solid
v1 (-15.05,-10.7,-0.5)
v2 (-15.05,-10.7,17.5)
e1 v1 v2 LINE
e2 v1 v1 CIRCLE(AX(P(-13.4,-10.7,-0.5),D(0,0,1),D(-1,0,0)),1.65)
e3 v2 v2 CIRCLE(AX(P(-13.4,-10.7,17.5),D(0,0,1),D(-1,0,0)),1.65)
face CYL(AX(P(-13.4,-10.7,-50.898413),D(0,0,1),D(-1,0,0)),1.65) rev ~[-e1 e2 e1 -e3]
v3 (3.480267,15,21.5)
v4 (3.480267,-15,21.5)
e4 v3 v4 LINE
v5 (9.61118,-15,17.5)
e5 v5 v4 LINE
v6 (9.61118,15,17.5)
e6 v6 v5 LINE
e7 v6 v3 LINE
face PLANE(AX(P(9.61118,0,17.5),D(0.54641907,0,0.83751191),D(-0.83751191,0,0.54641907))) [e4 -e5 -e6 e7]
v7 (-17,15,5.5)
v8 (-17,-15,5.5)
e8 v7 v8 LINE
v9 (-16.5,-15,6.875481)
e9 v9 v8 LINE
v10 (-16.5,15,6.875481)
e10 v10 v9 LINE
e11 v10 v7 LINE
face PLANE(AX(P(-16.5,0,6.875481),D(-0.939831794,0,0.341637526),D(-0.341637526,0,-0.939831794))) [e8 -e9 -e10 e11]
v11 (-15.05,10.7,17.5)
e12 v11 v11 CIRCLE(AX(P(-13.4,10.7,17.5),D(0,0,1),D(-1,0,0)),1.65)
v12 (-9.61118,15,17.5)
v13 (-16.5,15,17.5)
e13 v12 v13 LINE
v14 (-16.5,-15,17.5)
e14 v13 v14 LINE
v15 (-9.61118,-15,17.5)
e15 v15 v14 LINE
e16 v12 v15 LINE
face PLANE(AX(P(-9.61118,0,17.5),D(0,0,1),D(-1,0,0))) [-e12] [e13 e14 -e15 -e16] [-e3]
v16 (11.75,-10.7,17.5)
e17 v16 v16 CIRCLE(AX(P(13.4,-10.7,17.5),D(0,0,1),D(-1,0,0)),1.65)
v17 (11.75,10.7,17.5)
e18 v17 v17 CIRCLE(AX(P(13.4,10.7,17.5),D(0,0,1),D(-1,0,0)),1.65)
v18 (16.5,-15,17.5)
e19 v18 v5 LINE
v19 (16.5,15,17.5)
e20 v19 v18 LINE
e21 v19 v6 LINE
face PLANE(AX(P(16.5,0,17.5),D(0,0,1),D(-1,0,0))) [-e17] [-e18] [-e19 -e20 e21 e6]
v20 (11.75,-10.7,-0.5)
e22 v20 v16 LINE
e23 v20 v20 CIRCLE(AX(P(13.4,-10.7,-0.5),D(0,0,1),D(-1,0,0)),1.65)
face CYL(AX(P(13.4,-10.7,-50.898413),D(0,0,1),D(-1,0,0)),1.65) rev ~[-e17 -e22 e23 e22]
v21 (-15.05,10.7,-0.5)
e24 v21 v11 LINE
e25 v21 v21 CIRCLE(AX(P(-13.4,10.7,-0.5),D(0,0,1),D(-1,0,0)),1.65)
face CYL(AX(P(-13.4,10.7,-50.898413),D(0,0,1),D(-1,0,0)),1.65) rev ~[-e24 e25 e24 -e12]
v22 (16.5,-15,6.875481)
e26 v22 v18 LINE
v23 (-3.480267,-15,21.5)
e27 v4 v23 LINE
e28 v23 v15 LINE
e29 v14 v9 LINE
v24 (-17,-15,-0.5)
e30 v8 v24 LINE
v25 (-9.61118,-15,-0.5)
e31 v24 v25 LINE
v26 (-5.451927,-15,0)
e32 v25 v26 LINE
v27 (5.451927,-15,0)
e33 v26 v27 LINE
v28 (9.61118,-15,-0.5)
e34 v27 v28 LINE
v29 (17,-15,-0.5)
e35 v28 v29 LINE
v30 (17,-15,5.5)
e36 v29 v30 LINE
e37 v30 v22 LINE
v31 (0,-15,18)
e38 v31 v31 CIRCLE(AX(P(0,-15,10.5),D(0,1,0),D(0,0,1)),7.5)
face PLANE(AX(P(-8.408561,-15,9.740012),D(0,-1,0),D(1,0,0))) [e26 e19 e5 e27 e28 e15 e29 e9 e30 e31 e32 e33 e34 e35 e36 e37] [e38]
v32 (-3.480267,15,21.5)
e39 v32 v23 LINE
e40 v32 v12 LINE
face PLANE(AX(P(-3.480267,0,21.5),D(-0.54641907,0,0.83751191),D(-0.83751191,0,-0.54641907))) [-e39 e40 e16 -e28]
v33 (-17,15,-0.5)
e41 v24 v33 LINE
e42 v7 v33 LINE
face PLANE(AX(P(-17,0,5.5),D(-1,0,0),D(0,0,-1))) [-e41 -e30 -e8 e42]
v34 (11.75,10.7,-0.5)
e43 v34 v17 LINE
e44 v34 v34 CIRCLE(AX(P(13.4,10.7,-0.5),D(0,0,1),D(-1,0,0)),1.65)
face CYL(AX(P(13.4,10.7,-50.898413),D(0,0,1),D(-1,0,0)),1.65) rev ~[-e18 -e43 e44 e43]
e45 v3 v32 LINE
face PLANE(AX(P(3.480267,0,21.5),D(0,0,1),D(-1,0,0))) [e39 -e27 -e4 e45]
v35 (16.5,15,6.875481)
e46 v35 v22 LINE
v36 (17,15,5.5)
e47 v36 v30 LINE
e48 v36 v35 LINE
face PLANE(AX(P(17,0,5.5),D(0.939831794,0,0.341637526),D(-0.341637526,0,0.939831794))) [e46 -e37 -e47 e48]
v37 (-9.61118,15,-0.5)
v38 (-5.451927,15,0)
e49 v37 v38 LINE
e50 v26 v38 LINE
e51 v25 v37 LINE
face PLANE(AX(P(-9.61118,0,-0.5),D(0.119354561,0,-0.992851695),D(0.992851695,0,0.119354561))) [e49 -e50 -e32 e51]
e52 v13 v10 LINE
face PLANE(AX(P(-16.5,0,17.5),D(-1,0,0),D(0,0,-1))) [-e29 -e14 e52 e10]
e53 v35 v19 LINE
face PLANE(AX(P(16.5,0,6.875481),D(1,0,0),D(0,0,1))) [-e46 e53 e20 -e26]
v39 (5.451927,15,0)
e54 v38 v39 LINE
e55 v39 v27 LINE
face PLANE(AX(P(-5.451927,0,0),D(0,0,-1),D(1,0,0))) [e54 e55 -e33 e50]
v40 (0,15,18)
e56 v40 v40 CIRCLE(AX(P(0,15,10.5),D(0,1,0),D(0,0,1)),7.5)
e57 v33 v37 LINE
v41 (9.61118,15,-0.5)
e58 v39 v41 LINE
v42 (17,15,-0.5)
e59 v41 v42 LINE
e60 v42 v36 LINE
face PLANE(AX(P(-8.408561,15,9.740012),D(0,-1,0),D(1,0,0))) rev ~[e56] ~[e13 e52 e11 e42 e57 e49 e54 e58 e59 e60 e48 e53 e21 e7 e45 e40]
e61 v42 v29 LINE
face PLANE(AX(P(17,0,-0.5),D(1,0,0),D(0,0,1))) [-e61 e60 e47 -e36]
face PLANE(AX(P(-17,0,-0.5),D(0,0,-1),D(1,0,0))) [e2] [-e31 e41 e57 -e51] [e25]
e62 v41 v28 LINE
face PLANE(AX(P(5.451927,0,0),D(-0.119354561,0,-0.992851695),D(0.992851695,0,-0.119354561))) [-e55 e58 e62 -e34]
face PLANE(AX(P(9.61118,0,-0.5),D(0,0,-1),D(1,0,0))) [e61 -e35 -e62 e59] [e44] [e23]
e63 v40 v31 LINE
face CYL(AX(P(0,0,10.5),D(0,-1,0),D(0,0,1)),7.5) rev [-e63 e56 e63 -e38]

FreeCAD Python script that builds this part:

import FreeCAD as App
import Part
import Sketcher
Q = App.Units.Quantity


def add_polygon(sketch, points):
    """Adds a closed chain of lines whose ends are joined by coincident constraints."""
    first, n = sketch.GeometryCount, len(points)
    for a, b in zip(points, points[1:] + points[:1]):
        sketch.addGeometry(Part.LineSegment(App.Vector(*a, 0), App.Vector(*b, 0)), False)
    for i in range(n):
        sketch.addConstraint(Sketcher.Constraint("Coincident", first + i, 2, first + (i + 1) % n, 1))

doc = App.newDocument("Part")
body = doc.addObject("PartDesign::Body", "Body")

# Sketch on XZ plane
sketch1 = doc.addObject("Sketcher::SketchObject", "Sketch")
body.addObject(sketch1)
sketch1.AttachmentSupport = (doc.XZ_Plane, [""])
sketch1.MapMode = "FlatFace"
add_polygon(sketch1, [(-5.451927, 0), (5.451927, 0), (9.61118, -0.5), (17, -0.5), (17, 5.5), (16.5, 6.875481), (16.5, 17.5), (9.61118, 17.5), (3.480267, 21.5), (-3.480267, 21.5), (-9.61118, 17.5), (-16.5, 17.5), (-16.5, 6.875481), (-17, 5.5), (-17, -0.5), (-9.61118, -0.5)])  # lines 0-15
sketch1.addGeometry(Part.Circle(App.Vector(0, 10.5, 0), App.Vector(0, 0, 1), 7.5), False)  # 16
sketch1.addConstraint([
    Sketcher.Constraint("Horizontal", 0),
    Sketcher.Constraint("Horizontal", 2),
    Sketcher.Constraint("Vertical", 3),
    Sketcher.Constraint("Vertical", 5),
    Sketcher.Constraint("Horizontal", 6),
    Sketcher.Constraint("Horizontal", 8),
    Sketcher.Constraint("Horizontal", 10),
    Sketcher.Constraint("Vertical", 11),
    Sketcher.Constraint("Vertical", 13),
    Sketcher.Constraint("Horizontal", 14),
    Sketcher.Constraint("Symmetric", 0, 2, 15, 2, -1, 1),
    Sketcher.Constraint("Symmetric", 6, 2, 9, 2, -2),
    Sketcher.Constraint("Symmetric", 4, 2, 11, 2, -2),
    Sketcher.Constraint("Symmetric", 3, 2, 12, 2, -2),
    Sketcher.Constraint("Symmetric", 1, 2, 14, 2, -2),
    Sketcher.Constraint("PointOnObject", 16, 3, -2),
    Sketcher.Constraint("Vertical", 1, 2, 6, 2),
    Sketcher.Constraint("Equal", 7, 9),
    Sketcher.Constraint("Diameter", 16, Q("15 mm")),
    Sketcher.Constraint("DistanceY", 3, 1, 3, 2, Q("6 mm")),
    Sketcher.Constraint("DistanceX", -1, 1, 2, 2, Q("17 mm")),
    Sketcher.Constraint("DistanceY", 1, 2, 16, 3, Q("11 mm")),
    Sketcher.Constraint("DistanceY", 3, 2, 5, 2, Q("12 mm")),
    Sketcher.Constraint("DistanceY", 6, 2, 7, 2, Q("4 mm")),
    Sketcher.Constraint("DistanceY", -1, 1, 16, 3, Q("10.5 mm")),
    Sketcher.Constraint("DistanceX", -1, 1, 4, 2, Q("16.5 mm")),
    Sketcher.Constraint("Distance", 1, Q("4.189199 mm")),
    Sketcher.Constraint("DistanceX", 2, 1, 2, 2, Q("7.38882 mm")),
    Sketcher.Constraint("DistanceY", 5, 1, 5, 2, Q("10.624519 mm")),
    Sketcher.Constraint("Distance", 7, Q("7.320389 mm")),
])
pad1 = doc.addObject("PartDesign::Pad", "Pad")
body.addObject(pad1)
pad1.Profile = sketch1
pad1.Length = 30
pad1.Midplane = True

# Sketch on XY plane
sketch2 = doc.addObject("Sketcher::SketchObject", "Sketch001")
body.addObject(sketch2)
sketch2.AttachmentSupport = (doc.XY_Plane, [""])
sketch2.MapMode = "FlatFace"
sketch2.AttachmentOffset = App.Placement(App.Vector(0, 0, -0.5), App.Rotation())
sketch2.addGeometry([
    Part.Circle(App.Vector(-13.4, -10.7, 0), App.Vector(0, 0, 1), 1.65),
    Part.Circle(App.Vector(-13.4, 10.7, 0), App.Vector(0, 0, 1), 1.65),
    Part.Circle(App.Vector(13.4, 10.7, 0), App.Vector(0, 0, 1), 1.65),
    Part.Circle(App.Vector(13.4, -10.7, 0), App.Vector(0, 0, 1), 1.65),
], False)
sketch2.addConstraint([
    Sketcher.Constraint("Equal", 0, 1),
    Sketcher.Constraint("Equal", 1, 2),
    Sketcher.Constraint("Equal", 2, 3),
    Sketcher.Constraint("Symmetric", 0, 3, 2, 3, -1, 1),
    Sketcher.Constraint("Symmetric", 1, 3, 3, 3, -1, 1),
    Sketcher.Constraint("Symmetric", 1, 3, 2, 3, -2),
    Sketcher.Constraint("Diameter", 0, Q("3.3 mm")),
    Sketcher.Constraint("DistanceX", 0, 3, -1, 1, Q("13.4 mm")),
    Sketcher.Constraint("DistanceY", 0, 3, -1, 1, Q("10.7 mm")),
])
doc.recompute()
hole = doc.addObject("PartDesign::Hole", "Hole")
body.addObject(hole)
hole.Profile = sketch2
hole.ThreadType = "None"
hole.Diameter = 3.3
hole.DepthType = "ThroughAll"
hole.Reversed = True

doc.recompute()
